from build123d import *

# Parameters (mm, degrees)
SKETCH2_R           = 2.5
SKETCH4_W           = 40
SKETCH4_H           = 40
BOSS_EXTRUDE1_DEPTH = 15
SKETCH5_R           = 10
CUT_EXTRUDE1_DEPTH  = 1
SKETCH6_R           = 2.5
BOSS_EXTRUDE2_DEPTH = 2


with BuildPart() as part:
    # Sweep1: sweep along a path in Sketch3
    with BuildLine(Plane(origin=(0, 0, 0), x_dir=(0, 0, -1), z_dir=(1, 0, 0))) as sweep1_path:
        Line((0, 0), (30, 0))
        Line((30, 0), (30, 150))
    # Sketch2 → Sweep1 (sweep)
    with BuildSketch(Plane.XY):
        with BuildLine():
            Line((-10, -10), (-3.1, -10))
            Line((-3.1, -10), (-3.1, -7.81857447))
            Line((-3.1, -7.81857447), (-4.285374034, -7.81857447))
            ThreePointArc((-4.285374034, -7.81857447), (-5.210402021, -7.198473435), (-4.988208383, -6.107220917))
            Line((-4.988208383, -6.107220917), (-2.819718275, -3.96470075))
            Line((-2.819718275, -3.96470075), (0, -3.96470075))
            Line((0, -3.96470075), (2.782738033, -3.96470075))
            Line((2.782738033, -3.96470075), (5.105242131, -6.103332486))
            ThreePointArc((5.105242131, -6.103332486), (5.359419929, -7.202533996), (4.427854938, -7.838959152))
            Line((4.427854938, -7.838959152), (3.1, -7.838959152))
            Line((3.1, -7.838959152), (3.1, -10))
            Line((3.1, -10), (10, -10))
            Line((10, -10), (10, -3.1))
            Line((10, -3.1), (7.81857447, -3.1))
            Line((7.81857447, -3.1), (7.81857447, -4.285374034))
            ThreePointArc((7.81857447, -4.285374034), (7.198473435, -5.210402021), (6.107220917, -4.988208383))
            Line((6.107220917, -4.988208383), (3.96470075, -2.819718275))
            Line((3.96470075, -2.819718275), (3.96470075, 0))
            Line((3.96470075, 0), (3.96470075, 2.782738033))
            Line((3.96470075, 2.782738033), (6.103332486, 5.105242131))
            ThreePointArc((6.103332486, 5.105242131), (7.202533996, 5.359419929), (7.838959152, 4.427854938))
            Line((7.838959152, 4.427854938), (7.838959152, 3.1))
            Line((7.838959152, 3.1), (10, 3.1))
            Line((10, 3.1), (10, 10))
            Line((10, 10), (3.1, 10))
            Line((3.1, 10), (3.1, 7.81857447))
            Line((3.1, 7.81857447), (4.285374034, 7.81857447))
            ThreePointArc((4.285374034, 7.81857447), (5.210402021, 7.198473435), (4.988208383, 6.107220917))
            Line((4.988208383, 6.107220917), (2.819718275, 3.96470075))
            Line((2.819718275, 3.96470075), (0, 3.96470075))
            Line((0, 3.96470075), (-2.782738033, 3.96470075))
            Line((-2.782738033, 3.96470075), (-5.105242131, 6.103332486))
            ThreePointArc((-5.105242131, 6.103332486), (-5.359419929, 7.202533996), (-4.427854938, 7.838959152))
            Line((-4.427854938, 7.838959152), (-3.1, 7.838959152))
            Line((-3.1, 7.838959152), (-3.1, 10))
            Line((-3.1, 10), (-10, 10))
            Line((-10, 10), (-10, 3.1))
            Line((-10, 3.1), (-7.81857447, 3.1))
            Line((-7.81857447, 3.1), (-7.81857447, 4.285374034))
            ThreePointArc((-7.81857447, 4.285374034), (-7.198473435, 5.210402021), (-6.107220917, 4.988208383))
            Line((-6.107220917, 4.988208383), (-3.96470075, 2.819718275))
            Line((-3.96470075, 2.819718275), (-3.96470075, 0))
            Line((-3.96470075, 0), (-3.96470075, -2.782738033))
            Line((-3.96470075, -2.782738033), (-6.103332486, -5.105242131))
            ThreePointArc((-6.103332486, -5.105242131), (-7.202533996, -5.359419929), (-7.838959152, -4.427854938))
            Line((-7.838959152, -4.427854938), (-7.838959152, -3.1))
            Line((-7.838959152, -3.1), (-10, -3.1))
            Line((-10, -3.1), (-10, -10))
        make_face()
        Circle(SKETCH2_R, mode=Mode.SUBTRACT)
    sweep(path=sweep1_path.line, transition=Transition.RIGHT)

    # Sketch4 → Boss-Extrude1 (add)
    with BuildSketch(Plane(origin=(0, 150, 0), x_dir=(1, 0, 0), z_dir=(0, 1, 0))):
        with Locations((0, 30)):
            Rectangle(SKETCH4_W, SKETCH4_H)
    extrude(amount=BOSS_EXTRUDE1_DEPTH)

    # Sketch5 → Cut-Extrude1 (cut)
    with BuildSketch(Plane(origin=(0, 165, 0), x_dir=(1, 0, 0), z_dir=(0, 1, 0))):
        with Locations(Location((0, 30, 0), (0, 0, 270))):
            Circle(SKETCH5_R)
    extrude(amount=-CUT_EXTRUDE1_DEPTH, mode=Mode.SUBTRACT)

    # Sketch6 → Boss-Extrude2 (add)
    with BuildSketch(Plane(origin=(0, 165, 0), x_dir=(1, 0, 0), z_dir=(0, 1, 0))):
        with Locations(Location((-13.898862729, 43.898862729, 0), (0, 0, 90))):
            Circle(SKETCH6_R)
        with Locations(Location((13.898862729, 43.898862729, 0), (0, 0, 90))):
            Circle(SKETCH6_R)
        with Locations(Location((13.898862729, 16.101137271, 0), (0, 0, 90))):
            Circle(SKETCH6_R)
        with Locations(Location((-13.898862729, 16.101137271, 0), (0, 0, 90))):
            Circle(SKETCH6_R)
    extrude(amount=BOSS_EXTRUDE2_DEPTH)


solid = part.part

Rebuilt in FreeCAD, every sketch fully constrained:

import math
import FreeCAD as App
import Part
import Sketcher
Q = App.Units.Quantity


def add_polygon(sketch, points):
    """Adds a closed chain of lines whose ends are joined by coincident constraints."""
    first, n = sketch.GeometryCount, len(points)
    for a, b in zip(points, points[1:] + points[:1]):
        sketch.addGeometry(Part.LineSegment(App.Vector(*a, 0), App.Vector(*b, 0)), False)
    for i in range(n):
        sketch.addConstraint(Sketcher.Constraint("Coincident", first + i, 2, first + (i + 1) % n, 1))

doc = App.newDocument("Part")
body = doc.addObject("PartDesign::Body", "Body")

# Sketch on XY plane
sketch1 = body.newObject("Sketcher::SketchObject", "Sketch")
sketch1.AttachmentSupport = (doc.getObject("XY_Plane"), [""])
sketch1.MapMode = "FlatFace"
sketch1.addGeometry([
    Part.LineSegment(App.Vector(-10, -10, 0), App.Vector(-3.1, -10, 0)),  # 0
    Part.LineSegment(App.Vector(-3.1, -10, 0), App.Vector(-3.1, -7.8, 0)),  # 1
    Part.LineSegment(App.Vector(-3.1, -7.8, 0), App.Vector(-4.3, -7.8, 0)),  # 2
    Part.ArcOfCircle(Part.Circle(App.Vector(-4.3, -6.8, 0), App.Vector(0, 0, 1), 1), math.radians(135), math.radians(270)),  # 3
    Part.LineSegment(App.Vector(-5, -6.1, 0), App.Vector(-2.8, -4, 0)),  # 4
    Part.LineSegment(App.Vector(-2.8, -4, 0), App.Vector(2.8, -4, 0)),  # 5
    Part.LineSegment(App.Vector(2.8, -4, 0), App.Vector(5.1, -6.1, 0)),  # 6
    Part.ArcOfCircle(Part.Circle(App.Vector(4.4, -6.8, 0), App.Vector(0, 0, 1), 1), math.radians(-90), math.radians(47)),  # 7
    Part.LineSegment(App.Vector(4.4, -7.8, 0), App.Vector(3.1, -7.8, 0)),  # 8
    Part.LineSegment(App.Vector(3.1, -7.8, 0), App.Vector(3.1, -10, 0)),  # 9
    Part.LineSegment(App.Vector(3.1, -10, 0), App.Vector(10, -10, 0)),  # 10
    Part.LineSegment(App.Vector(10, -10, 0), App.Vector(10, -3.1, 0)),  # 11
    Part.LineSegment(App.Vector(10, -3.1, 0), App.Vector(7.8, -3.1, 0)),  # 12
    Part.LineSegment(App.Vector(7.8, -3.1, 0), App.Vector(7.8, -4.3, 0)),  # 13
    Part.ArcOfCircle(Part.Circle(App.Vector(6.8, -4.3, 0), App.Vector(0, 0, 1), 1), math.radians(-135), math.radians(0)),  # 14
    Part.LineSegment(App.Vector(6.1, -5, 0), App.Vector(4, -2.8, 0)),  # 15
    Part.LineSegment(App.Vector(4, -2.8, 0), App.Vector(4, 2.8, 0)),  # 16
    Part.LineSegment(App.Vector(4, 2.8, 0), App.Vector(6.1, 5.1, 0)),  # 17
    Part.ArcOfCircle(Part.Circle(App.Vector(6.8, 4.4, 0), App.Vector(0, 0, 1), 1), math.radians(0), math.radians(137)),  # 18
    Part.LineSegment(App.Vector(7.8, 4.4, 0), App.Vector(7.8, 3.1, 0)),  # 19
    Part.LineSegment(App.Vector(7.8, 3.1, 0), App.Vector(10, 3.1, 0)),  # 20
    Part.LineSegment(App.Vector(10, 3.1, 0), App.Vector(10, 10, 0)),  # 21
    Part.LineSegment(App.Vector(10, 10, 0), App.Vector(3.1, 10, 0)),  # 22
    Part.LineSegment(App.Vector(3.1, 10, 0), App.Vector(3.1, 7.8, 0)),  # 23
    Part.LineSegment(App.Vector(3.1, 7.8, 0), App.Vector(4.3, 7.8, 0)),  # 24
    Part.ArcOfCircle(Part.Circle(App.Vector(4.3, 6.8, 0), App.Vector(0, 0, 1), 1), math.radians(-45), math.radians(90)),  # 25
    Part.LineSegment(App.Vector(5, 6.1, 0), App.Vector(2.8, 4, 0)),  # 26
    Part.LineSegment(App.Vector(2.8, 4, 0), App.Vector(-2.8, 4, 0)),  # 27
    Part.LineSegment(App.Vector(-2.8, 4, 0), App.Vector(-5.1, 6.1, 0)),  # 28
    Part.ArcOfCircle(Part.Circle(App.Vector(-4.4, 6.8, 0), App.Vector(0, 0, 1), 1), math.radians(90), math.radians(227)),  # 29
    Part.LineSegment(App.Vector(-4.4, 7.8, 0), App.Vector(-3.1, 7.8, 0)),  # 30
    Part.LineSegment(App.Vector(-3.1, 7.8, 0), App.Vector(-3.1, 10, 0)),  # 31
    Part.LineSegment(App.Vector(-3.1, 10, 0), App.Vector(-10, 10, 0)),  # 32
    Part.LineSegment(App.Vector(-10, 10, 0), App.Vector(-10, 3.1, 0)),  # 33
    Part.LineSegment(App.Vector(-10, 3.1, 0), App.Vector(-7.8, 3.1, 0)),  # 34
    Part.LineSegment(App.Vector(-7.8, 3.1, 0), App.Vector(-7.8, 4.3, 0)),  # 35
    Part.ArcOfCircle(Part.Circle(App.Vector(-6.8, 4.3, 0), App.Vector(0, 0, 1), 1), math.radians(45), math.radians(180)),  # 36
    Part.LineSegment(App.Vector(-6.1, 5, 0), App.Vector(-4, 2.8, 0)),  # 37
    Part.LineSegment(App.Vector(-4, 2.8, 0), App.Vector(-4, -2.8, 0)),  # 38
    Part.LineSegment(App.Vector(-4, -2.8, 0), App.Vector(-6.1, -5.1, 0)),  # 39
    Part.ArcOfCircle(Part.Circle(App.Vector(-6.8, -4.4, 0), App.Vector(0, 0, 1), 1), math.radians(-180), math.radians(-43)),  # 40
    Part.LineSegment(App.Vector(-7.8, -4.4, 0), App.Vector(-7.8, -3.1, 0)),  # 41
    Part.LineSegment(App.Vector(-7.8, -3.1, 0), App.Vector(-10, -3.1, 0)),  # 42
    Part.LineSegment(App.Vector(-10, -3.1, 0), App.Vector(-10, -10, 0)),  # 43
    Part.Circle(App.Vector(0, 0, 0), App.Vector(0, 0, 1), 2.5),  # 44
], False)
sketch1.addConstraint([
    Sketcher.Constraint("Coincident", 0, 2, 1, 1),
    Sketcher.Constraint("Coincident", 1, 2, 2, 1),
    Sketcher.Constraint("Tangent", 2, 2, 3, 2),
    Sketcher.Constraint("Tangent", 3, 1, 4, 1),
    Sketcher.Constraint("Coincident", 4, 2, 5, 1),
    Sketcher.Constraint("Coincident", 5, 2, 6, 1),
    Sketcher.Constraint("Tangent", 6, 2, 7, 2),
    Sketcher.Constraint("Tangent", 7, 1, 8, 1),
    Sketcher.Constraint("Coincident", 8, 2, 9, 1),
    Sketcher.Constraint("Coincident", 9, 2, 10, 1),
    Sketcher.Constraint("Coincident", 10, 2, 11, 1),
    Sketcher.Constraint("Coincident", 11, 2, 12, 1),
    Sketcher.Constraint("Coincident", 12, 2, 13, 1),
    Sketcher.Constraint("Tangent", 13, 2, 14, 2),
    Sketcher.Constraint("Tangent", 14, 1, 15, 1),
    Sketcher.Constraint("Coincident", 15, 2, 16, 1),
    Sketcher.Constraint("Coincident", 16, 2, 17, 1),
    Sketcher.Constraint("Tangent", 17, 2, 18, 2),
    Sketcher.Constraint("Tangent", 18, 1, 19, 1),
    Sketcher.Constraint("Coincident", 19, 2, 20, 1),
    Sketcher.Constraint("Coincident", 20, 2, 21, 1),
    Sketcher.Constraint("Coincident", 21, 2, 22, 1),
    Sketcher.Constraint("Coincident", 22, 2, 23, 1),
    Sketcher.Constraint("Coincident", 23, 2, 24, 1),
    Sketcher.Constraint("Tangent", 24, 2, 25, 2),
    Sketcher.Constraint("Tangent", 25, 1, 26, 1),
    Sketcher.Constraint("Coincident", 26, 2, 27, 1),
    Sketcher.Constraint("Coincident", 27, 2, 28, 1),
    Sketcher.Constraint("Tangent", 28, 2, 29, 2),
    Sketcher.Constraint("Tangent", 29, 1, 30, 1),
    Sketcher.Constraint("Coincident", 30, 2, 31, 1),
    Sketcher.Constraint("Coincident", 31, 2, 32, 1),
    Sketcher.Constraint("Coincident", 32, 2, 33, 1),
    Sketcher.Constraint("Coincident", 33, 2, 34, 1),
    Sketcher.Constraint("Coincident", 34, 2, 35, 1),
    Sketcher.Constraint("Tangent", 35, 2, 36, 2),
    Sketcher.Constraint("Tangent", 36, 1, 37, 1),
    Sketcher.Constraint("Coincident", 37, 2, 38, 1),
    Sketcher.Constraint("Coincident", 38, 2, 39, 1),
    Sketcher.Constraint("Tangent", 39, 2, 40, 2),
    Sketcher.Constraint("Tangent", 40, 1, 41, 1),
    Sketcher.Constraint("Coincident", 41, 2, 42, 1),
    Sketcher.Constraint("Coincident", 42, 2, 43, 1),
    Sketcher.Constraint("Coincident", 43, 2, 0, 1),
    Sketcher.Constraint("Horizontal", 0),
    Sketcher.Constraint("Vertical", 1),
    Sketcher.Constraint("Horizontal", 2),
    Sketcher.Constraint("Horizontal", 5),
    Sketcher.Constraint("Horizontal", 8),
    Sketcher.Constraint("Vertical", 9),
    Sketcher.Constraint("Horizontal", 10),
    Sketcher.Constraint("Vertical", 11),
    Sketcher.Constraint("Horizontal", 12),
    Sketcher.Constraint("Vertical", 13),
    Sketcher.Constraint("Vertical", 16),
    Sketcher.Constraint("Vertical", 19),
    Sketcher.Constraint("Horizontal", 20),
    Sketcher.Constraint("Vertical", 21),
    Sketcher.Constraint("Horizontal", 22),
    Sketcher.Constraint("Vertical", 23),
    Sketcher.Constraint("Horizontal", 24),
    Sketcher.Constraint("Horizontal", 27),
    Sketcher.Constraint("Horizontal", 30),
    Sketcher.Constraint("Vertical", 31),
    Sketcher.Constraint("Horizontal", 32),
    Sketcher.Constraint("Vertical", 33),
    Sketcher.Constraint("Horizontal", 34),
    Sketcher.Constraint("Vertical", 35),
    Sketcher.Constraint("Vertical", 38),
    Sketcher.Constraint("Vertical", 41),
    Sketcher.Constraint("Horizontal", 42),
    Sketcher.Constraint("Vertical", 43),
    Sketcher.Constraint("Coincident", 44, 3, -1, 1),
    Sketcher.Constraint("Equal", 3, 7),
    Sketcher.Constraint("Equal", 7, 14),
    Sketcher.Constraint("Equal", 14, 18),
    Sketcher.Constraint("Equal", 18, 25),
    Sketcher.Constraint("Equal", 25, 29),
    Sketcher.Constraint("Equal", 29, 36),
    Sketcher.Constraint("Equal", 36, 40),
    Sketcher.Constraint("Symmetric", 3, 3, 25, 3, -1, 1),
    Sketcher.Constraint("Symmetric", 7, 3, 29, 3, -1, 1),
    Sketcher.Constraint("Symmetric", 14, 3, 36, 3, -1, 1),
    Sketcher.Constraint("Symmetric", 18, 3, 40, 3, -1, 1),
    Sketcher.Constraint("Symmetric", 0, 2, 22, 2, -1, 1),
    Sketcher.Constraint("Symmetric", 4, 2, 26, 2, -1, 1),
    Sketcher.Constraint("Symmetric", 9, 2, 31, 2, -1, 1),
    Sketcher.Constraint("Symmetric", 11, 2, 33, 2, -1, 1),
    Sketcher.Constraint("Symmetric", 15, 2, 37, 2, -1, 1),
    Sketcher.Constraint("Symmetric", 20, 2, 42, 2, -1, 1),
    Sketcher.Constraint("Symmetric", 0, 2, 9, 2, -2),
    Sketcher.Constraint("Symmetric", 20, 2, 33, 2, -2),
    Sketcher.Constraint("Perpendicular", 4, 15),
    Sketcher.Constraint("Perpendicular", 6, 17),
    Sketcher.Constraint("Perpendicular", 17, 28),
    Sketcher.Constraint("Perpendicular", 28, 39),
    Sketcher.Constraint("Equal", 34, 1),
    Sketcher.Constraint("Equal", 42, 9),
    Sketcher.Constraint("Equal", 32, 11),
    Sketcher.Constraint("Equal", 24, 13),
    Sketcher.Constraint("Equal", 27, 16),
    Sketcher.Constraint("Equal", 30, 19),
    Sketcher.Constraint("Equal", 4, 15),
    Sketcher.Constraint("Diameter", 44, Q("5 mm")),
    Sketcher.Constraint("Radius", 3, Q("1 mm")),
    Sketcher.Constraint("DistanceX", 0, 1, 0, 2, Q("6.9 mm")),
    Sketcher.Constraint("DistanceY", 0, 2, -1, 1, Q("10 mm")),
    Sketcher.Constraint("Distance", 4, Q("3.0484 mm")),
    Sketcher.Constraint("DistanceX", 20, 1, 20, 2, Q("2.161041 mm")),
    Sketcher.Constraint("DistanceY", 4, 2, -1, 1, Q("3.964701 mm")),
    Sketcher.Constraint("DistanceY", 3, 3, 14, 3, Q("2.5332 mm")),
    Sketcher.Constraint("DistanceX", 2, 2, 2, 1, Q("1.185374 mm")),
    Sketcher.Constraint("DistanceX", 5, 1, 5, 2, Q("5.602456 mm")),
    Sketcher.Constraint("DistanceX", 8, 2, 8, 1, Q("1.327855 mm")),
])

# Sketch on YZ plane
sketch2 = body.newObject("Sketcher::SketchObject", "Sketch001")
sketch2.AttachmentSupport = (doc.getObject("YZ_Plane"), [""])
sketch2.MapMode = "FlatFace"
sketch2.addGeometry([
    Part.LineSegment(App.Vector(0, 0, 0), App.Vector(0, -30, 0)),
    Part.LineSegment(App.Vector(0, -30, 0), App.Vector(150, -30, 0)),
], False)
sketch2.addConstraint([
    Sketcher.Constraint("Coincident", 0, 2, 1, 1),
    Sketcher.Constraint("Vertical", 0),
    Sketcher.Constraint("Horizontal", 1),
    Sketcher.Constraint("Coincident", 0, 1, -1, 1),
    Sketcher.Constraint("DistanceX", 1, 1, 1, 2, Q("150 mm")),
    Sketcher.Constraint("DistanceY", 0, 2, 0, 1, Q("30 mm")),
])
doc.recompute()

additivepipe = body.newObject("PartDesign::AdditivePipe", "AdditivePipe")
additivepipe.Profile = sketch1
additivepipe.Spine = (sketch2, ["Edge1", "Edge2"])
additivepipe.Transition = "Right corner"

# Sketch on XZ plane
sketch3 = body.newObject("Sketcher::SketchObject", "Sketch002")
sketch3.AttachmentSupport = (doc.getObject("XZ_Plane"), [""])
sketch3.MapMode = "FlatFace"
sketch3.AttachmentOffset = App.Placement(App.Vector(0, 0, -150), App.Rotation())
add_polygon(sketch3, [(-20, -50), (-20, -10), (20, -10), (20, -50)])  # lines 0-3
sketch3.addConstraint([
    Sketcher.Constraint("Vertical", 0),
    Sketcher.Constraint("Horizontal", 1),
    Sketcher.Constraint("Vertical", 2),
    Sketcher.Constraint("Horizontal", 3),
    Sketcher.Constraint("Equal", 3, 0),
    Sketcher.Constraint("DistanceX", 1, 1, 1, 2, Q("40 mm")),
    Sketcher.Constraint("DistanceX", 0, 2, -1, 1, Q("20 mm")),
    Sketcher.Constraint("DistanceY", 0, 2, -1, 1, Q("10 mm")),
])
pad1 = body.newObject("PartDesign::Pad", "Pad")
pad1.Profile = sketch3
pad1.Length = 15
pad1.Reversed = True

# Sketch on XZ plane
sketch4 = body.newObject("Sketcher::SketchObject", "Sketch003")
sketch4.AttachmentSupport = (doc.getObject("XZ_Plane"), [""])
sketch4.MapMode = "FlatFace"
sketch4.AttachmentOffset = App.Placement(App.Vector(0, 0, -165), App.Rotation())
sketch4.addGeometry(Part.Circle(App.Vector(0, -30, 0), App.Vector(0, 0, 1), 10), False)
sketch4.addConstraint([
    Sketcher.Constraint("PointOnObject", 0, 3, -2),
    Sketcher.Constraint("Diameter", 0, Q("20 mm")),
    Sketcher.Constraint("DistanceY", 0, 3, -1, 1, Q("30 mm")),
])
pocket1 = body.newObject("PartDesign::Pocket", "Pocket")
pocket1.Profile = sketch4
pocket1.Length = 1
pocket1.Reversed = True

# Sketch on XZ plane
sketch5 = body.newObject("Sketcher::SketchObject", "Sketch004")
sketch5.AttachmentSupport = (doc.getObject("XZ_Plane"), [""])
sketch5.MapMode = "FlatFace"
sketch5.AttachmentOffset = App.Placement(App.Vector(0, 0, -165), App.Rotation())
sketch5.addGeometry([
    Part.Circle(App.Vector(-13.9, -43.9, 0), App.Vector(0, 0, 1), 2.5),
    Part.Circle(App.Vector(13.9, -43.9, 0), App.Vector(0, 0, 1), 2.5),
    Part.Circle(App.Vector(13.9, -16.1, 0), App.Vector(0, 0, 1), 2.5),
    Part.Circle(App.Vector(-13.9, -16.1, 0), App.Vector(0, 0, 1), 2.5),
], False)
sketch5.addConstraint([
    Sketcher.Constraint("Equal", 0, 1),
    Sketcher.Constraint("Equal", 1, 2),
    Sketcher.Constraint("Equal", 2, 3),
    Sketcher.Constraint("Symmetric", 0, 3, 1, 3, -2),
    Sketcher.Constraint("Symmetric", 2, 3, 3, 3, -2),
    Sketcher.Constraint("Vertical", 1, 3, 2, 3),
    Sketcher.Constraint("Diameter", 0, Q("5 mm")),
    Sketcher.Constraint("DistanceX", 0, 3, -1, 1, Q("13.898863 mm")),
    Sketcher.Constraint("DistanceY", 0, 3, -1, 1, Q("43.898863 mm")),
    Sketcher.Constraint("DistanceY", 2, 3, -1, 1, Q("16.101137 mm")),
])
pad2 = body.newObject("PartDesign::Pad", "Pad001")
pad2.Profile = sketch5
pad2.Length = 2
pad2.Reversed = True

doc.recompute()
